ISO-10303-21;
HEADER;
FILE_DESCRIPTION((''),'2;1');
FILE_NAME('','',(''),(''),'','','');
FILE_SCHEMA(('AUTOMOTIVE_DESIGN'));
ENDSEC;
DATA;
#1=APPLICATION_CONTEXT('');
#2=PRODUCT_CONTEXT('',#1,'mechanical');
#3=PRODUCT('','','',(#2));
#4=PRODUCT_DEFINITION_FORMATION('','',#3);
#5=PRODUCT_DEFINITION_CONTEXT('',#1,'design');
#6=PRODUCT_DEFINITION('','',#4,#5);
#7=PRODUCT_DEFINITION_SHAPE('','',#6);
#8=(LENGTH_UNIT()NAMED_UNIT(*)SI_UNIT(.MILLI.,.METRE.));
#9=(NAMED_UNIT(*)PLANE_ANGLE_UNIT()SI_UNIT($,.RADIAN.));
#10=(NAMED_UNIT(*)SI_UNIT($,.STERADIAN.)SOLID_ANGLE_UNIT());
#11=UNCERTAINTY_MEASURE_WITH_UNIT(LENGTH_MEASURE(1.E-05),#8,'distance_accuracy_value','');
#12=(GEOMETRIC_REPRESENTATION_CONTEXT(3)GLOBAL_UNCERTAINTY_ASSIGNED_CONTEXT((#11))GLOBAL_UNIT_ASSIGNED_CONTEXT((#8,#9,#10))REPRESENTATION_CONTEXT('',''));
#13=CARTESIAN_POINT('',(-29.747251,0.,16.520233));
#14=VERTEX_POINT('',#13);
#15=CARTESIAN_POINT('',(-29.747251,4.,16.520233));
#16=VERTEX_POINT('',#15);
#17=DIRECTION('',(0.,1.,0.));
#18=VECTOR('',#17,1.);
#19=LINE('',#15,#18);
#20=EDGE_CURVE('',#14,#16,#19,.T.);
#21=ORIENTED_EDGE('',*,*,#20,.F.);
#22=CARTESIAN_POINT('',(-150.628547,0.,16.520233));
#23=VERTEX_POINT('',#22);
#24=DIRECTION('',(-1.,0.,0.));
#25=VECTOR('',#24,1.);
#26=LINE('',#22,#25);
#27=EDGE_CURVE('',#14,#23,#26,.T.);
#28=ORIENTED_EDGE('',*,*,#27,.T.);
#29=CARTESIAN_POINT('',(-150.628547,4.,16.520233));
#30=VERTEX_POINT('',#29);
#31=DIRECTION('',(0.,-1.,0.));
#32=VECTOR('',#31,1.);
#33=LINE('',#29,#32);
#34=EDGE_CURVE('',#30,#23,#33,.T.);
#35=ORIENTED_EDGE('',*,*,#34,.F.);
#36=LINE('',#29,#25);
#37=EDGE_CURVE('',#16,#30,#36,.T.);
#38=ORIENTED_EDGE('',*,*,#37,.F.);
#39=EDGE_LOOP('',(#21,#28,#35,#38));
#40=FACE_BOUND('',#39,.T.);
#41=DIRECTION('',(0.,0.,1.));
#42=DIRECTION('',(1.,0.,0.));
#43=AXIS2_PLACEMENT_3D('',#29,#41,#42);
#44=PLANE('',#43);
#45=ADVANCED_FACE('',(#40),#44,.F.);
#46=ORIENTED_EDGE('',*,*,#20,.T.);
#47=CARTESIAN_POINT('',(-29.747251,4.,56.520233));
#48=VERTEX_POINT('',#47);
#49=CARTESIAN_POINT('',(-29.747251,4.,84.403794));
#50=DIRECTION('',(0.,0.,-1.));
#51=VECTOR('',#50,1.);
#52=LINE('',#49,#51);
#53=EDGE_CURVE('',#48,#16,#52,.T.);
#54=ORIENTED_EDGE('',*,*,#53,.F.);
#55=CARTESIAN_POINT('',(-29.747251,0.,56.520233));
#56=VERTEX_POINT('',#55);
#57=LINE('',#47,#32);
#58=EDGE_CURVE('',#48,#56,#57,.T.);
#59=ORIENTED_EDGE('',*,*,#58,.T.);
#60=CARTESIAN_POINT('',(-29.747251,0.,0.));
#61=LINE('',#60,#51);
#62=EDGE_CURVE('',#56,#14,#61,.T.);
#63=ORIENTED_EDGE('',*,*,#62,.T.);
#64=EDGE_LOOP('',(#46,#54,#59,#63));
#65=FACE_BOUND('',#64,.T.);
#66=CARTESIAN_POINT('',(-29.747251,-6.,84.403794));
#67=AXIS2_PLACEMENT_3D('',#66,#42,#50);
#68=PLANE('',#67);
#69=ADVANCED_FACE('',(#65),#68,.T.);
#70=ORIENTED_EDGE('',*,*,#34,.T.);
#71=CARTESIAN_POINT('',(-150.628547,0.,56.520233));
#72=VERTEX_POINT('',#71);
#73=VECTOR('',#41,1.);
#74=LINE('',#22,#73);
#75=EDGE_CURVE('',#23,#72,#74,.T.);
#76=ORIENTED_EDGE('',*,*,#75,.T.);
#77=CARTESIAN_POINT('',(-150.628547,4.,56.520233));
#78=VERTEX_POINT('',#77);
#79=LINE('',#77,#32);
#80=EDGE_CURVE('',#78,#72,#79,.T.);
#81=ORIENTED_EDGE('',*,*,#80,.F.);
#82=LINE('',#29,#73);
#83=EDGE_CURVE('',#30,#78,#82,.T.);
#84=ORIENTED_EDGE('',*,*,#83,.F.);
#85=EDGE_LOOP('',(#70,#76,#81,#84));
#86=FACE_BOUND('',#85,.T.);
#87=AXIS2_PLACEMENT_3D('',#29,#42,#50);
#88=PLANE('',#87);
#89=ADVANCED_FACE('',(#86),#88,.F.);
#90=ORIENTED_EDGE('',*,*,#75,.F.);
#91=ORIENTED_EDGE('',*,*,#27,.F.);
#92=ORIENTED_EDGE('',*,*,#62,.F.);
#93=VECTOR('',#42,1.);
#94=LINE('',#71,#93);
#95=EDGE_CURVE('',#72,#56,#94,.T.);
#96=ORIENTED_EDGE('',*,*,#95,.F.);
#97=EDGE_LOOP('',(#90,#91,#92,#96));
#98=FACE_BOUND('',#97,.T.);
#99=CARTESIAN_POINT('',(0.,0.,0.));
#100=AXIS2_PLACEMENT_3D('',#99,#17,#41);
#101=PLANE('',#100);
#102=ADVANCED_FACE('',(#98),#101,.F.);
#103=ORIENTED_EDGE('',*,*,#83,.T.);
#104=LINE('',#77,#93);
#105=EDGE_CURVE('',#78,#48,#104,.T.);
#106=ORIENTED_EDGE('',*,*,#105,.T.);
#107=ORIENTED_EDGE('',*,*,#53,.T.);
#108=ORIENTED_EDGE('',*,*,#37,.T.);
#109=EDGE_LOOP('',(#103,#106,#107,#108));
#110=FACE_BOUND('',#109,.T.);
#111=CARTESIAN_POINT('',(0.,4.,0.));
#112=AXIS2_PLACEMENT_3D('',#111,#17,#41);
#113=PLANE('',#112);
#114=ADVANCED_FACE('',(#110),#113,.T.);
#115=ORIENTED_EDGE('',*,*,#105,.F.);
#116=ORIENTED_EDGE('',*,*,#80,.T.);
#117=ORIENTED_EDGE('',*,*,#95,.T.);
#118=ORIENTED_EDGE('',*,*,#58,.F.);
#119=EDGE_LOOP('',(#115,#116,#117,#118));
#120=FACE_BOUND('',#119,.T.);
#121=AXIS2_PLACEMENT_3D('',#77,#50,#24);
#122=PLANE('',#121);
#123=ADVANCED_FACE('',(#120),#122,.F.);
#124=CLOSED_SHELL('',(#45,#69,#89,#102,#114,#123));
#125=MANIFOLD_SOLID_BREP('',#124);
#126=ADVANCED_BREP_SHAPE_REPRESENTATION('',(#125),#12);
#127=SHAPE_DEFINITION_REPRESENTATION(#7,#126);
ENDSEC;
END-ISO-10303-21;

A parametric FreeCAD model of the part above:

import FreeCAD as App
import Part
import Sketcher
from FreeCAD import Vector
Q = App.Units.Quantity


def add_polygon(sketch, points):
    """Adds a closed chain of lines whose ends are joined by coincident constraints."""
    first, n = sketch.GeometryCount, len(points)
    for a, b in zip(points, points[1:] + points[:1]):
        sketch.addGeometry(Part.LineSegment(App.Vector(*a, 0), App.Vector(*b, 0)), False)
    for i in range(n):
        sketch.addConstraint(Sketcher.Constraint("Coincident", first + i, 2, first + (i + 1) % n, 1))

doc = App.newDocument("Part")
body = doc.addObject("PartDesign::Body", "Body")

sketch1 = body.newObject("Sketcher::SketchObject", "Sketch")
sketch1.AttachmentSupport = (doc.getObject("XZ_Plane"), [""])
sketch1.MapMode = "FlatFace"
add_polygon(sketch1, [(-151, 17), (-151, 57), (99, 57), (99, 17)])
sketch1.addConstraint(Sketcher.Constraint("Vertical", 0))
sketch1.addConstraint(Sketcher.Constraint("Horizontal", 1))
sketch1.addConstraint(Sketcher.Constraint("Vertical", 2))
sketch1.addConstraint(Sketcher.Constraint("Horizontal", 3))
sketch1.addConstraint(Sketcher.Constraint("DistanceX", 1, 1, 1, 2, Q("250 mm")))
sketch1.addConstraint(Sketcher.Constraint("DistanceY", 0, 1, 0, 2, Q("40 mm")))
sketch1.addConstraint(Sketcher.Constraint("DistanceX", 0, 2, -1, 1, Q("150.628547 mm")))
sketch1.addConstraint(Sketcher.Constraint("DistanceY", -1, 1, 0, 2, Q("56.520233 mm")))
pad1 = body.newObject("PartDesign::Pad", "Pad")
pad1.Profile = sketch1
pad1.Length = 4
pad1.Reversed = True

sketch2 = body.newObject("Sketcher::SketchObject", "Sketch001")
sketch2.AttachmentSupport = (doc.getObject("XZ_Plane"), [""])
sketch2.MapMode = "FlatFace"
sketch2.AttachmentOffset = App.Placement(Vector(0, 0, -4), App.Rotation())
add_polygon(sketch2, [(-30, 5), (-30, 84), (104, 84), (104, 5)])
sketch2.addConstraint(Sketcher.Constraint("Vertical", 0))
sketch2.addConstraint(Sketcher.Constraint("Horizontal", 1))
sketch2.addConstraint(Sketcher.Constraint("Vertical", 2))
sketch2.addConstraint(Sketcher.Constraint("Horizontal", 3))
sketch2.addConstraint(Sketcher.Constraint("DistanceX", 1, 1, 1, 2, Q("133.971029 mm")))
sketch2.addConstraint(Sketcher.Constraint("DistanceY", 0, 1, 0, 2, Q("79.30195 mm")))
sketch2.addConstraint(Sketcher.Constraint("DistanceX", 0, 2, -1, 1, Q("29.747251 mm")))
sketch2.addConstraint(Sketcher.Constraint("DistanceY", -1, 1, 0, 2, Q("84.403794 mm")))
pocket1 = body.newObject("PartDesign::Pocket", "Pocket")
pocket1.Profile = sketch2
pocket1.Length = 10
pocket1.Reversed = True

doc.recompute()
